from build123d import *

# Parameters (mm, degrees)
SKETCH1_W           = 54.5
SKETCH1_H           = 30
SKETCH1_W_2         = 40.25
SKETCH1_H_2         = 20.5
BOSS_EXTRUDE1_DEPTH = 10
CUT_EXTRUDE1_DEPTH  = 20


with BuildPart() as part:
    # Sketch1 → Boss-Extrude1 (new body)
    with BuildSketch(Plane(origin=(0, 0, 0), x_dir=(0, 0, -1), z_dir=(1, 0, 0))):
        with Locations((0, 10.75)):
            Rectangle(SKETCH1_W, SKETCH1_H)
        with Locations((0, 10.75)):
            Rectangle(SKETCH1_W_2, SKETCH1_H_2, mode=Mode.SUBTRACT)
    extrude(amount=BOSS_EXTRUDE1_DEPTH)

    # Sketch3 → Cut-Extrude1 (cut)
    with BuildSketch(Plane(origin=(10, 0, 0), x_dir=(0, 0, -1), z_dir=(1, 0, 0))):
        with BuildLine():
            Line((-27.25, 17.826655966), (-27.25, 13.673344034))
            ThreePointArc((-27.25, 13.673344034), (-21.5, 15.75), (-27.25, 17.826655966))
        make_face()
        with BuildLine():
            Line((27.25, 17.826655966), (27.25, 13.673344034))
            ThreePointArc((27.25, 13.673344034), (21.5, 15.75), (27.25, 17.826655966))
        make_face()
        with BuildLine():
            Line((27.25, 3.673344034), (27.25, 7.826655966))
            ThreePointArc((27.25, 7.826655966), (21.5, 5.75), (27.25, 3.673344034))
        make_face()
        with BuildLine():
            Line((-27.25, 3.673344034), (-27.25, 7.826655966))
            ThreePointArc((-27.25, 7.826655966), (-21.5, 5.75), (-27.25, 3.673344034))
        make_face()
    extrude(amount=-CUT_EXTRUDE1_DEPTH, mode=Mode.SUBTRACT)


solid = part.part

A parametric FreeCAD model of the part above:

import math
import FreeCAD as App
import Part
import Sketcher
from FreeCAD import Vector

doc = App.newDocument("Part")
body = doc.addObject("PartDesign::Body", "Body")

# Sketch on YZ plane
sketch1 = body.newObject("Sketcher::SketchObject", "Sketch")
sketch1.AttachmentSupport = (doc.getObject("YZ_Plane"), [""])
sketch1.MapMode = "FlatFace"
sketch1.addGeometry(Part.LineSegment(Vector(25.75, 27.25, 0), Vector(-4.25, 27.25, 0)), False)
sketch1.addGeometry(Part.LineSegment(Vector(-4.25, 27.25, 0), Vector(-4.25, -27.25, 0)), False)
sketch1.addGeometry(Part.LineSegment(Vector(-4.25, -27.25, 0), Vector(25.75, -27.25, 0)), False)
sketch1.addGeometry(Part.LineSegment(Vector(25.75, -27.25, 0), Vector(25.75, 27.25, 0)), False)
sketch1.addGeometry(Part.LineSegment(Vector(0.5, -20.125, 0), Vector(0.5, 20.125, 0)), False)
sketch1.addGeometry(Part.LineSegment(Vector(0.5, 20.125, 0), Vector(21, 20.125, 0)), False)
sketch1.addGeometry(Part.LineSegment(Vector(21, 20.125, 0), Vector(21, -20.125, 0)), False)
sketch1.addGeometry(Part.LineSegment(Vector(21, -20.125, 0), Vector(0.5, -20.125, 0)), False)
sketch1.addConstraint(Sketcher.Constraint("Coincident", 0, 2, 1, 1))
sketch1.addConstraint(Sketcher.Constraint("Coincident", 1, 2, 2, 1))
sketch1.addConstraint(Sketcher.Constraint("Coincident", 2, 2, 3, 1))
sketch1.addConstraint(Sketcher.Constraint("Coincident", 3, 2, 0, 1))
sketch1.addConstraint(Sketcher.Constraint("Coincident", 4, 2, 5, 1))
sketch1.addConstraint(Sketcher.Constraint("Coincident", 5, 2, 6, 1))
sketch1.addConstraint(Sketcher.Constraint("Coincident", 6, 2, 7, 1))
sketch1.addConstraint(Sketcher.Constraint("Coincident", 7, 2, 4, 1))
sketch1.addConstraint(Sketcher.Constraint("Horizontal", 0))
sketch1.addConstraint(Sketcher.Constraint("Vertical", 1))
sketch1.addConstraint(Sketcher.Constraint("Horizontal", 2))
sketch1.addConstraint(Sketcher.Constraint("Vertical", 3))
sketch1.addConstraint(Sketcher.Constraint("Vertical", 4))
sketch1.addConstraint(Sketcher.Constraint("Horizontal", 5))
sketch1.addConstraint(Sketcher.Constraint("Vertical", 6))
sketch1.addConstraint(Sketcher.Constraint("Horizontal", 7))
sketch1.addConstraint(Sketcher.Constraint("DistanceX", 0, 2, 0, 1, 30.0))
sketch1.addConstraint(Sketcher.Constraint("DistanceX", 5, 1, 5, 2, 20.5))
sketch1.addConstraint(Sketcher.Constraint("DistanceY", 1, 2, 1, 1, 54.5))
sketch1.addConstraint(Sketcher.Constraint("DistanceX", -1, 1, 5, 2, 21.0))
sketch1.addConstraint(Sketcher.Constraint("DistanceY", 4, 1, 4, 2, 40.25))
sketch1.addConstraint(Sketcher.Constraint("DistanceX", 0, 2, -1, 1, 4.25))
sketch1.addConstraint(Sketcher.Constraint("DistanceY", -1, 1, 0, 2, 27.25))
sketch1.addConstraint(Sketcher.Constraint("DistanceY", -1, 1, 4, 2, 20.125))
pad1 = body.newObject("PartDesign::Pad", "Pad")
pad1.Profile = sketch1
pad1.Length = 10

# Sketch on YZ plane
sketch2 = body.newObject("Sketcher::SketchObject", "Sketch001")
sketch2.AttachmentSupport = (doc.getObject("YZ_Plane"), [""])
sketch2.MapMode = "FlatFace"
sketch2.AttachmentOffset = App.Placement(Vector(0, 0, 10), App.Rotation())
sketch2.addGeometry(Part.LineSegment(Vector(17.826656, 27.25, 0), Vector(13.673344, 27.25, 0)), False)
sketch2.addGeometry(Part.ArcOfCircle(Part.Circle(Vector(15.75, 24.75, 0), Vector(0, 0, 1), 3.25), math.radians(129.715137), math.radians(410.284863)), False)
sketch2.addGeometry(Part.LineSegment(Vector(13.673344, -27.25, 0), Vector(17.826656, -27.25, 0)), False)
sketch2.addGeometry(Part.ArcOfCircle(Part.Circle(Vector(15.75, -24.75, 0), Vector(0, 0, 1), 3.25), math.radians(-50.284863), math.radians(230.284863)), False)
sketch2.addGeometry(Part.LineSegment(Vector(3.673344, -27.25, 0), Vector(7.826656, -27.25, 0)), False)
sketch2.addGeometry(Part.ArcOfCircle(Part.Circle(Vector(5.75, -24.75, 0), Vector(0, 0, 1), 3.25), math.radians(-50.284863), math.radians(230.284863)), False)
sketch2.addGeometry(Part.LineSegment(Vector(7.826656, 27.25, 0), Vector(3.673344, 27.25, 0)), False)
sketch2.addGeometry(Part.ArcOfCircle(Part.Circle(Vector(5.75, 24.75, 0), Vector(0, 0, 1), 3.25), math.radians(129.715137), math.radians(410.284863)), False)
sketch2.addConstraint(Sketcher.Constraint("Coincident", 0, 1, 1, 2))
sketch2.addConstraint(Sketcher.Constraint("Coincident", 1, 1, 0, 2))
sketch2.addConstraint(Sketcher.Constraint("Coincident", 2, 1, 3, 2))
sketch2.addConstraint(Sketcher.Constraint("Coincident", 3, 1, 2, 2))
sketch2.addConstraint(Sketcher.Constraint("Coincident", 4, 1, 5, 2))
sketch2.addConstraint(Sketcher.Constraint("Coincident", 5, 1, 4, 2))
sketch2.addConstraint(Sketcher.Constraint("Coincident", 6, 1, 7, 2))
sketch2.addConstraint(Sketcher.Constraint("Coincident", 7, 1, 6, 2))
sketch2.addConstraint(Sketcher.Constraint("Horizontal", 0))
sketch2.addConstraint(Sketcher.Constraint("Horizontal", 2))
sketch2.addConstraint(Sketcher.Constraint("Horizontal", 4))
sketch2.addConstraint(Sketcher.Constraint("Horizontal", 6))
sketch2.addConstraint(Sketcher.Constraint("Equal", 1, 3))
sketch2.addConstraint(Sketcher.Constraint("Equal", 3, 5))
sketch2.addConstraint(Sketcher.Constraint("Equal", 5, 7))
sketch2.addConstraint(Sketcher.Constraint("Symmetric", 1, 3, 3, 3, -1))
sketch2.addConstraint(Sketcher.Constraint("Symmetric", 5, 3, 7, 3, -1))
sketch2.addConstraint(Sketcher.Constraint("Horizontal", 3, 3, 5, 3))
sketch2.addConstraint(Sketcher.Constraint("Horizontal", 3, 1, 4, 1))
sketch2.addConstraint(Sketcher.Constraint("Horizontal", 1, 1, 6, 1))
sketch2.addConstraint(Sketcher.Constraint("Vertical", 1, 1, 2, 1))
sketch2.addConstraint(Sketcher.Constraint("Radius", 1, 3.25))
sketch2.addConstraint(Sketcher.Constraint("DistanceX", 5, 3, 3, 3, 10.0))
sketch2.addConstraint(Sketcher.Constraint("DistanceY", 3, 3, 0, 1, 52.0))
sketch2.addConstraint(Sketcher.Constraint("DistanceY", 3, 3, 1, 3, 49.5))
sketch2.addConstraint(Sketcher.Constraint("DistanceX", -1, 1, 1, 3, 15.75))
pocket1 = body.newObject("PartDesign::Pocket", "Pocket")
pocket1.Profile = sketch2
pocket1.Length = 20

doc.recompute()
